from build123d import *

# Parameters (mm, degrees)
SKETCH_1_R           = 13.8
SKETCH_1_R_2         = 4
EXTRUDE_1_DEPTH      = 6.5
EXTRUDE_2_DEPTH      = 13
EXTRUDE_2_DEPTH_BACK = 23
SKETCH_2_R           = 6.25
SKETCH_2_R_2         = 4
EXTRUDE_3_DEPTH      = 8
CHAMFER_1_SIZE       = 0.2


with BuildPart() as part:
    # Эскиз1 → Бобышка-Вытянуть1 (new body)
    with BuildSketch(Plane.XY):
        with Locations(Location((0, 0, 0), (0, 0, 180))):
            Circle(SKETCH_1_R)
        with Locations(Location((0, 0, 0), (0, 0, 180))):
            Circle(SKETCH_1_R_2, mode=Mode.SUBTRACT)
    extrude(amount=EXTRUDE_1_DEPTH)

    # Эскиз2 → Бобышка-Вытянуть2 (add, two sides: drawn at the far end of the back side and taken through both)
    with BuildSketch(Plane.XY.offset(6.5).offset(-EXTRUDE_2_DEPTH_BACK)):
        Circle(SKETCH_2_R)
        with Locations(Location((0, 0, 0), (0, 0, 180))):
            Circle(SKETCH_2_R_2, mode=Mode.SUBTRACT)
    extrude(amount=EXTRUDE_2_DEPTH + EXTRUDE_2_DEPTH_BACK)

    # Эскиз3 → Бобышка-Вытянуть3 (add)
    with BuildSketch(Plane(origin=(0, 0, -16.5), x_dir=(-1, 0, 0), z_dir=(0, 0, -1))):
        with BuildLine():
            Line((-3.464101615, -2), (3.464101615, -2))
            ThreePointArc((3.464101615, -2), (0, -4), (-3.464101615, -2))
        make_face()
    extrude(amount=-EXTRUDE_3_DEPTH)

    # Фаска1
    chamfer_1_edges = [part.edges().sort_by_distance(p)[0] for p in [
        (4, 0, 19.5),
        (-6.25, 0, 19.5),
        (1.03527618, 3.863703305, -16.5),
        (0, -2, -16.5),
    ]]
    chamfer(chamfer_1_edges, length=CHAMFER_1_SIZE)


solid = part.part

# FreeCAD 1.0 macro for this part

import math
import FreeCAD as App
import Part
import Sketcher

V = App.Vector


def edges_at(feature, points):
    """Names of the edges that pass closest to the given points."""
    edges = feature.Shape.Edges
    near = lambda p: min(range(len(edges)), key=lambda i: edges[i].distToShape(Part.Vertex(*p))[0])
    return sorted({f"Edge{near(p) + 1}" for p in points})

doc = App.newDocument("Part")
body = doc.addObject("PartDesign::Body", "Body")

# Sketch on XY plane
sketch1 = body.newObject("Sketcher::SketchObject", "Sketch")
sketch1.AttachmentSupport = (doc.getObject("XY_Plane"), [""])
sketch1.MapMode = "FlatFace"
sketch1.addGeometry(Part.Circle(V(0, 0, 0), V(0, 0, 1), 13.8), False)
sketch1.addGeometry(Part.Circle(V(0, 0, 0), V(0, 0, 1), 4), False)
sketch1.addConstraint(Sketcher.Constraint("Coincident", 0, 3, -1, 1))
sketch1.addConstraint(Sketcher.Constraint("Coincident", 1, 3, -1, 1))
sketch1.addConstraint(Sketcher.Constraint("Diameter", 1, 8.0))
sketch1.addConstraint(Sketcher.Constraint("Diameter", 0, 27.6))
pad1 = body.newObject("PartDesign::Pad", "Pad")
pad1.Profile = sketch1
pad1.Length = 6.5

# Sketch on XY plane
sketch2 = body.newObject("Sketcher::SketchObject", "Sketch001")
sketch2.AttachmentSupport = (doc.getObject("XY_Plane"), [""])
sketch2.MapMode = "FlatFace"
sketch2.AttachmentOffset = App.Placement(V(0, 0, 6.5), App.Rotation())
sketch2.addGeometry(Part.Circle(V(0, 0, 0), V(0, 0, 1), 6.2), False)
sketch2.addGeometry(Part.Circle(V(0, 0, 0), V(0, 0, 1), 4), False)
sketch2.addConstraint(Sketcher.Constraint("Coincident", 0, 3, -1, 1))
sketch2.addConstraint(Sketcher.Constraint("Coincident", 1, 3, -1, 1))
sketch2.addConstraint(Sketcher.Constraint("Diameter", 1, 8.0))
sketch2.addConstraint(Sketcher.Constraint("Diameter", 0, 12.5))
pad2 = body.newObject("PartDesign::Pad", "Pad001")
pad2.Profile = sketch2
pad2.Type = "TwoLengths"
pad2.Length = 13
pad2.Length2 = 23

# Sketch on XY plane
sketch3 = body.newObject("Sketcher::SketchObject", "Sketch002")
sketch3.AttachmentSupport = (doc.getObject("XY_Plane"), [""])
sketch3.MapMode = "FlatFace"
sketch3.AttachmentOffset = App.Placement(V(0, 0, -16.5), App.Rotation())
sketch3.addGeometry(Part.LineSegment(V(-3.5, -2, 0), V(3.5, -2, 0)), False)
sketch3.addGeometry(Part.ArcOfCircle(Part.Circle(V(0, 0, 0), V(0, 0, 1), 4), math.radians(-150), math.radians(-30)), False)
sketch3.addConstraint(Sketcher.Constraint("Coincident", 0, 1, 1, 1))
sketch3.addConstraint(Sketcher.Constraint("Coincident", 1, 2, 0, 2))
sketch3.addConstraint(Sketcher.Constraint("Horizontal", 0))
sketch3.addConstraint(Sketcher.Constraint("Coincident", 1, 3, -1, 1))
sketch3.addConstraint(Sketcher.Constraint("Radius", 1, 4.0))
sketch3.addConstraint(Sketcher.Constraint("DistanceY", 0, 1, -1, 1, 2.0))
pad3 = body.newObject("PartDesign::Pad", "Pad002")
pad3.Profile = sketch3
pad3.Length = 8
doc.recompute()

chamfer = body.newObject("PartDesign::Chamfer", "Chamfer")
chamfer.Base = (pad3, edges_at(pad3, [
    (4, 0, 19.5),
    (-6.25, 0, 19.5),
    (1.035, 3.864, -16.5),
    (0, -2, -16.5),
]))
chamfer.Size = 0.2

doc.recompute()
